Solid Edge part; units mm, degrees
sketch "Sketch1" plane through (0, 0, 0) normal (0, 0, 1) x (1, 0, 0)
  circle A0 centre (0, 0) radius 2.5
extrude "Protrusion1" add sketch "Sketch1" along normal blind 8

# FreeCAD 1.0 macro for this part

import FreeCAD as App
import Part
import Sketcher

V = App.Vector

doc = App.newDocument("Part")
params = doc.addObject("Spreadsheet::Sheet", "Params")
for row, (alias, value) in enumerate([
    ("sketch1_diameter", "5 mm"),
    ("pad1_length", "8 mm"),
], start=1):
    params.set(f"A{row}", alias)
    params.set(f"B{row}", "=" + value)
    params.setAlias(f"B{row}", alias)

body = doc.addObject("PartDesign::Body", "Body")

# Sketch on XY plane
sketch1 = body.newObject("Sketcher::SketchObject", "Sketch")
sketch1.AttachmentSupport = (doc.getObject("XY_Plane"), [""])
sketch1.MapMode = "FlatFace"
sketch1.addGeometry(Part.Circle(V(0, 0, 0), V(0, 0, 1), 2.5), False)
sketch1.addConstraint(Sketcher.Constraint("Coincident", 0, 3, -1, 1))
sketch1.addConstraint(Sketcher.Constraint("Diameter", 0, 5.0))
sketch1.setExpression("Constraints[1]", "Params.sketch1_diameter")
pad1 = body.newObject("PartDesign::Pad", "Pad")
pad1.Profile = sketch1
pad1.setExpression("Length", "Params.pad1_length")

doc.recompute()
